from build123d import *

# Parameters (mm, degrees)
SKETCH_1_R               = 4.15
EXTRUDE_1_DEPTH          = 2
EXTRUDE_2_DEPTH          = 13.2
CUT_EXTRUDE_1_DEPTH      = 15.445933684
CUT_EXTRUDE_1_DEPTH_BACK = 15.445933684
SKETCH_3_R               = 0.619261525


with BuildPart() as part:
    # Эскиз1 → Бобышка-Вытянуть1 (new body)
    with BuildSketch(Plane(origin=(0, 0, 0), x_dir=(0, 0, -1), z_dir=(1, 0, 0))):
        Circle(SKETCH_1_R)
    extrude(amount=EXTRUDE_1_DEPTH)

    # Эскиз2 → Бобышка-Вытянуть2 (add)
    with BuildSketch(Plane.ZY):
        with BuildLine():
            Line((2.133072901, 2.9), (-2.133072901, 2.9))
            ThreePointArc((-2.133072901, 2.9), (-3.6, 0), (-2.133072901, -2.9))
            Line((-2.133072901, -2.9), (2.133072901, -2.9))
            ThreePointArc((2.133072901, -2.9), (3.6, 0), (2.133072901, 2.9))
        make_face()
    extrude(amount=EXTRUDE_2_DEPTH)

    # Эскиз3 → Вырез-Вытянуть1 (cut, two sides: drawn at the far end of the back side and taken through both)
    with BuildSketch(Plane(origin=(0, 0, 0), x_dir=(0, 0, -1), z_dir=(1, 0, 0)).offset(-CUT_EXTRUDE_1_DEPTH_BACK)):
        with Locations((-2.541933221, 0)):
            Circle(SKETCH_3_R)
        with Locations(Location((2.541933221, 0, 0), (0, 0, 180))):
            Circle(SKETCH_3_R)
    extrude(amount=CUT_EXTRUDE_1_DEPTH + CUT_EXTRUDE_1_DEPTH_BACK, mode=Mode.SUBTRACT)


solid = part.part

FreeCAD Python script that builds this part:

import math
import FreeCAD as App
import Part
import Sketcher
Q = App.Units.Quantity

doc = App.newDocument("Part")
body = doc.addObject("PartDesign::Body", "Body")

# Sketch on YZ plane
sketch1 = body.newObject("Sketcher::SketchObject", "Sketch")
sketch1.AttachmentSupport = (doc.getObject("YZ_Plane"), [""])
sketch1.MapMode = "FlatFace"
sketch1.addGeometry(Part.Circle(App.Vector(0, 0, 0), App.Vector(0, 0, 1), 4.15), False)
sketch1.addConstraint([
    Sketcher.Constraint("Coincident", 0, 3, -1, 1),
    Sketcher.Constraint("Diameter", 0, Q("8.3 mm")),
])
pad1 = body.newObject("PartDesign::Pad", "Pad")
pad1.Profile = sketch1
pad1.Length = 2

# Sketch on YZ plane
sketch2 = body.newObject("Sketcher::SketchObject", "Sketch001")
sketch2.AttachmentSupport = (doc.getObject("YZ_Plane"), [""])
sketch2.MapMode = "FlatFace"
sketch2.addGeometry([
    Part.LineSegment(App.Vector(2.9, 2.133073, 0), App.Vector(2.9, -2.133073, 0)),
    Part.ArcOfCircle(Part.Circle(App.Vector(0, 0, 0), App.Vector(0, 0, 1), 3.6), math.radians(-143.663942), math.radians(-36.336058)),
    Part.LineSegment(App.Vector(-2.9, -2.133073, 0), App.Vector(-2.9, 2.133073, 0)),
    Part.ArcOfCircle(Part.Circle(App.Vector(0, 0, 0), App.Vector(0, 0, 1), 3.6), math.radians(36.336058), math.radians(143.663942)),
], False)
sketch2.addConstraint([
    Sketcher.Constraint("Coincident", 0, 2, 1, 2),
    Sketcher.Constraint("Coincident", 1, 1, 2, 1),
    Sketcher.Constraint("Coincident", 2, 2, 3, 2),
    Sketcher.Constraint("Coincident", 3, 1, 0, 1),
    Sketcher.Constraint("Vertical", 0),
    Sketcher.Constraint("Vertical", 2),
    Sketcher.Constraint("Coincident", 1, 3, -1, 1),
    Sketcher.Constraint("Coincident", 3, 3, -1, 1),
    Sketcher.Constraint("Equal", 1, 3),
    Sketcher.Constraint("Horizontal", 0, 2, 1, 1),
    Sketcher.Constraint("Radius", 1, Q("3.6 mm")),
    Sketcher.Constraint("DistanceX", -1, 1, 0, 2, Q("2.9 mm")),
])
pad2 = body.newObject("PartDesign::Pad", "Pad001")
pad2.Profile = sketch2
pad2.Length = 13.2
pad2.Reversed = True

# Sketch on YZ plane
sketch3 = body.newObject("Sketcher::SketchObject", "Sketch002")
sketch3.AttachmentSupport = (doc.getObject("YZ_Plane"), [""])
sketch3.MapMode = "FlatFace"
sketch3.addGeometry([
    Part.Circle(App.Vector(0, 2.541933, 0), App.Vector(0, 0, 1), 0.619262),
    Part.Circle(App.Vector(0, -2.541933, 0), App.Vector(0, 0, 1), 0.619262),
], False)
sketch3.addConstraint([
    Sketcher.Constraint("Equal", 0, 1),
    Sketcher.Constraint("Symmetric", 0, 3, 1, 3, -1, 1),
    Sketcher.Constraint("PointOnObject", 0, 3, -2),
    Sketcher.Constraint("Diameter", 0, Q("1.238523 mm")),
    Sketcher.Constraint("DistanceY", -1, 1, 0, 3, Q("2.541933 mm")),
])
pocket1 = body.newObject("PartDesign::Pocket", "Pocket")
pocket1.Profile = sketch3
pocket1.Type = "ThroughAll"
pocket1.Midplane = True

doc.recompute()
